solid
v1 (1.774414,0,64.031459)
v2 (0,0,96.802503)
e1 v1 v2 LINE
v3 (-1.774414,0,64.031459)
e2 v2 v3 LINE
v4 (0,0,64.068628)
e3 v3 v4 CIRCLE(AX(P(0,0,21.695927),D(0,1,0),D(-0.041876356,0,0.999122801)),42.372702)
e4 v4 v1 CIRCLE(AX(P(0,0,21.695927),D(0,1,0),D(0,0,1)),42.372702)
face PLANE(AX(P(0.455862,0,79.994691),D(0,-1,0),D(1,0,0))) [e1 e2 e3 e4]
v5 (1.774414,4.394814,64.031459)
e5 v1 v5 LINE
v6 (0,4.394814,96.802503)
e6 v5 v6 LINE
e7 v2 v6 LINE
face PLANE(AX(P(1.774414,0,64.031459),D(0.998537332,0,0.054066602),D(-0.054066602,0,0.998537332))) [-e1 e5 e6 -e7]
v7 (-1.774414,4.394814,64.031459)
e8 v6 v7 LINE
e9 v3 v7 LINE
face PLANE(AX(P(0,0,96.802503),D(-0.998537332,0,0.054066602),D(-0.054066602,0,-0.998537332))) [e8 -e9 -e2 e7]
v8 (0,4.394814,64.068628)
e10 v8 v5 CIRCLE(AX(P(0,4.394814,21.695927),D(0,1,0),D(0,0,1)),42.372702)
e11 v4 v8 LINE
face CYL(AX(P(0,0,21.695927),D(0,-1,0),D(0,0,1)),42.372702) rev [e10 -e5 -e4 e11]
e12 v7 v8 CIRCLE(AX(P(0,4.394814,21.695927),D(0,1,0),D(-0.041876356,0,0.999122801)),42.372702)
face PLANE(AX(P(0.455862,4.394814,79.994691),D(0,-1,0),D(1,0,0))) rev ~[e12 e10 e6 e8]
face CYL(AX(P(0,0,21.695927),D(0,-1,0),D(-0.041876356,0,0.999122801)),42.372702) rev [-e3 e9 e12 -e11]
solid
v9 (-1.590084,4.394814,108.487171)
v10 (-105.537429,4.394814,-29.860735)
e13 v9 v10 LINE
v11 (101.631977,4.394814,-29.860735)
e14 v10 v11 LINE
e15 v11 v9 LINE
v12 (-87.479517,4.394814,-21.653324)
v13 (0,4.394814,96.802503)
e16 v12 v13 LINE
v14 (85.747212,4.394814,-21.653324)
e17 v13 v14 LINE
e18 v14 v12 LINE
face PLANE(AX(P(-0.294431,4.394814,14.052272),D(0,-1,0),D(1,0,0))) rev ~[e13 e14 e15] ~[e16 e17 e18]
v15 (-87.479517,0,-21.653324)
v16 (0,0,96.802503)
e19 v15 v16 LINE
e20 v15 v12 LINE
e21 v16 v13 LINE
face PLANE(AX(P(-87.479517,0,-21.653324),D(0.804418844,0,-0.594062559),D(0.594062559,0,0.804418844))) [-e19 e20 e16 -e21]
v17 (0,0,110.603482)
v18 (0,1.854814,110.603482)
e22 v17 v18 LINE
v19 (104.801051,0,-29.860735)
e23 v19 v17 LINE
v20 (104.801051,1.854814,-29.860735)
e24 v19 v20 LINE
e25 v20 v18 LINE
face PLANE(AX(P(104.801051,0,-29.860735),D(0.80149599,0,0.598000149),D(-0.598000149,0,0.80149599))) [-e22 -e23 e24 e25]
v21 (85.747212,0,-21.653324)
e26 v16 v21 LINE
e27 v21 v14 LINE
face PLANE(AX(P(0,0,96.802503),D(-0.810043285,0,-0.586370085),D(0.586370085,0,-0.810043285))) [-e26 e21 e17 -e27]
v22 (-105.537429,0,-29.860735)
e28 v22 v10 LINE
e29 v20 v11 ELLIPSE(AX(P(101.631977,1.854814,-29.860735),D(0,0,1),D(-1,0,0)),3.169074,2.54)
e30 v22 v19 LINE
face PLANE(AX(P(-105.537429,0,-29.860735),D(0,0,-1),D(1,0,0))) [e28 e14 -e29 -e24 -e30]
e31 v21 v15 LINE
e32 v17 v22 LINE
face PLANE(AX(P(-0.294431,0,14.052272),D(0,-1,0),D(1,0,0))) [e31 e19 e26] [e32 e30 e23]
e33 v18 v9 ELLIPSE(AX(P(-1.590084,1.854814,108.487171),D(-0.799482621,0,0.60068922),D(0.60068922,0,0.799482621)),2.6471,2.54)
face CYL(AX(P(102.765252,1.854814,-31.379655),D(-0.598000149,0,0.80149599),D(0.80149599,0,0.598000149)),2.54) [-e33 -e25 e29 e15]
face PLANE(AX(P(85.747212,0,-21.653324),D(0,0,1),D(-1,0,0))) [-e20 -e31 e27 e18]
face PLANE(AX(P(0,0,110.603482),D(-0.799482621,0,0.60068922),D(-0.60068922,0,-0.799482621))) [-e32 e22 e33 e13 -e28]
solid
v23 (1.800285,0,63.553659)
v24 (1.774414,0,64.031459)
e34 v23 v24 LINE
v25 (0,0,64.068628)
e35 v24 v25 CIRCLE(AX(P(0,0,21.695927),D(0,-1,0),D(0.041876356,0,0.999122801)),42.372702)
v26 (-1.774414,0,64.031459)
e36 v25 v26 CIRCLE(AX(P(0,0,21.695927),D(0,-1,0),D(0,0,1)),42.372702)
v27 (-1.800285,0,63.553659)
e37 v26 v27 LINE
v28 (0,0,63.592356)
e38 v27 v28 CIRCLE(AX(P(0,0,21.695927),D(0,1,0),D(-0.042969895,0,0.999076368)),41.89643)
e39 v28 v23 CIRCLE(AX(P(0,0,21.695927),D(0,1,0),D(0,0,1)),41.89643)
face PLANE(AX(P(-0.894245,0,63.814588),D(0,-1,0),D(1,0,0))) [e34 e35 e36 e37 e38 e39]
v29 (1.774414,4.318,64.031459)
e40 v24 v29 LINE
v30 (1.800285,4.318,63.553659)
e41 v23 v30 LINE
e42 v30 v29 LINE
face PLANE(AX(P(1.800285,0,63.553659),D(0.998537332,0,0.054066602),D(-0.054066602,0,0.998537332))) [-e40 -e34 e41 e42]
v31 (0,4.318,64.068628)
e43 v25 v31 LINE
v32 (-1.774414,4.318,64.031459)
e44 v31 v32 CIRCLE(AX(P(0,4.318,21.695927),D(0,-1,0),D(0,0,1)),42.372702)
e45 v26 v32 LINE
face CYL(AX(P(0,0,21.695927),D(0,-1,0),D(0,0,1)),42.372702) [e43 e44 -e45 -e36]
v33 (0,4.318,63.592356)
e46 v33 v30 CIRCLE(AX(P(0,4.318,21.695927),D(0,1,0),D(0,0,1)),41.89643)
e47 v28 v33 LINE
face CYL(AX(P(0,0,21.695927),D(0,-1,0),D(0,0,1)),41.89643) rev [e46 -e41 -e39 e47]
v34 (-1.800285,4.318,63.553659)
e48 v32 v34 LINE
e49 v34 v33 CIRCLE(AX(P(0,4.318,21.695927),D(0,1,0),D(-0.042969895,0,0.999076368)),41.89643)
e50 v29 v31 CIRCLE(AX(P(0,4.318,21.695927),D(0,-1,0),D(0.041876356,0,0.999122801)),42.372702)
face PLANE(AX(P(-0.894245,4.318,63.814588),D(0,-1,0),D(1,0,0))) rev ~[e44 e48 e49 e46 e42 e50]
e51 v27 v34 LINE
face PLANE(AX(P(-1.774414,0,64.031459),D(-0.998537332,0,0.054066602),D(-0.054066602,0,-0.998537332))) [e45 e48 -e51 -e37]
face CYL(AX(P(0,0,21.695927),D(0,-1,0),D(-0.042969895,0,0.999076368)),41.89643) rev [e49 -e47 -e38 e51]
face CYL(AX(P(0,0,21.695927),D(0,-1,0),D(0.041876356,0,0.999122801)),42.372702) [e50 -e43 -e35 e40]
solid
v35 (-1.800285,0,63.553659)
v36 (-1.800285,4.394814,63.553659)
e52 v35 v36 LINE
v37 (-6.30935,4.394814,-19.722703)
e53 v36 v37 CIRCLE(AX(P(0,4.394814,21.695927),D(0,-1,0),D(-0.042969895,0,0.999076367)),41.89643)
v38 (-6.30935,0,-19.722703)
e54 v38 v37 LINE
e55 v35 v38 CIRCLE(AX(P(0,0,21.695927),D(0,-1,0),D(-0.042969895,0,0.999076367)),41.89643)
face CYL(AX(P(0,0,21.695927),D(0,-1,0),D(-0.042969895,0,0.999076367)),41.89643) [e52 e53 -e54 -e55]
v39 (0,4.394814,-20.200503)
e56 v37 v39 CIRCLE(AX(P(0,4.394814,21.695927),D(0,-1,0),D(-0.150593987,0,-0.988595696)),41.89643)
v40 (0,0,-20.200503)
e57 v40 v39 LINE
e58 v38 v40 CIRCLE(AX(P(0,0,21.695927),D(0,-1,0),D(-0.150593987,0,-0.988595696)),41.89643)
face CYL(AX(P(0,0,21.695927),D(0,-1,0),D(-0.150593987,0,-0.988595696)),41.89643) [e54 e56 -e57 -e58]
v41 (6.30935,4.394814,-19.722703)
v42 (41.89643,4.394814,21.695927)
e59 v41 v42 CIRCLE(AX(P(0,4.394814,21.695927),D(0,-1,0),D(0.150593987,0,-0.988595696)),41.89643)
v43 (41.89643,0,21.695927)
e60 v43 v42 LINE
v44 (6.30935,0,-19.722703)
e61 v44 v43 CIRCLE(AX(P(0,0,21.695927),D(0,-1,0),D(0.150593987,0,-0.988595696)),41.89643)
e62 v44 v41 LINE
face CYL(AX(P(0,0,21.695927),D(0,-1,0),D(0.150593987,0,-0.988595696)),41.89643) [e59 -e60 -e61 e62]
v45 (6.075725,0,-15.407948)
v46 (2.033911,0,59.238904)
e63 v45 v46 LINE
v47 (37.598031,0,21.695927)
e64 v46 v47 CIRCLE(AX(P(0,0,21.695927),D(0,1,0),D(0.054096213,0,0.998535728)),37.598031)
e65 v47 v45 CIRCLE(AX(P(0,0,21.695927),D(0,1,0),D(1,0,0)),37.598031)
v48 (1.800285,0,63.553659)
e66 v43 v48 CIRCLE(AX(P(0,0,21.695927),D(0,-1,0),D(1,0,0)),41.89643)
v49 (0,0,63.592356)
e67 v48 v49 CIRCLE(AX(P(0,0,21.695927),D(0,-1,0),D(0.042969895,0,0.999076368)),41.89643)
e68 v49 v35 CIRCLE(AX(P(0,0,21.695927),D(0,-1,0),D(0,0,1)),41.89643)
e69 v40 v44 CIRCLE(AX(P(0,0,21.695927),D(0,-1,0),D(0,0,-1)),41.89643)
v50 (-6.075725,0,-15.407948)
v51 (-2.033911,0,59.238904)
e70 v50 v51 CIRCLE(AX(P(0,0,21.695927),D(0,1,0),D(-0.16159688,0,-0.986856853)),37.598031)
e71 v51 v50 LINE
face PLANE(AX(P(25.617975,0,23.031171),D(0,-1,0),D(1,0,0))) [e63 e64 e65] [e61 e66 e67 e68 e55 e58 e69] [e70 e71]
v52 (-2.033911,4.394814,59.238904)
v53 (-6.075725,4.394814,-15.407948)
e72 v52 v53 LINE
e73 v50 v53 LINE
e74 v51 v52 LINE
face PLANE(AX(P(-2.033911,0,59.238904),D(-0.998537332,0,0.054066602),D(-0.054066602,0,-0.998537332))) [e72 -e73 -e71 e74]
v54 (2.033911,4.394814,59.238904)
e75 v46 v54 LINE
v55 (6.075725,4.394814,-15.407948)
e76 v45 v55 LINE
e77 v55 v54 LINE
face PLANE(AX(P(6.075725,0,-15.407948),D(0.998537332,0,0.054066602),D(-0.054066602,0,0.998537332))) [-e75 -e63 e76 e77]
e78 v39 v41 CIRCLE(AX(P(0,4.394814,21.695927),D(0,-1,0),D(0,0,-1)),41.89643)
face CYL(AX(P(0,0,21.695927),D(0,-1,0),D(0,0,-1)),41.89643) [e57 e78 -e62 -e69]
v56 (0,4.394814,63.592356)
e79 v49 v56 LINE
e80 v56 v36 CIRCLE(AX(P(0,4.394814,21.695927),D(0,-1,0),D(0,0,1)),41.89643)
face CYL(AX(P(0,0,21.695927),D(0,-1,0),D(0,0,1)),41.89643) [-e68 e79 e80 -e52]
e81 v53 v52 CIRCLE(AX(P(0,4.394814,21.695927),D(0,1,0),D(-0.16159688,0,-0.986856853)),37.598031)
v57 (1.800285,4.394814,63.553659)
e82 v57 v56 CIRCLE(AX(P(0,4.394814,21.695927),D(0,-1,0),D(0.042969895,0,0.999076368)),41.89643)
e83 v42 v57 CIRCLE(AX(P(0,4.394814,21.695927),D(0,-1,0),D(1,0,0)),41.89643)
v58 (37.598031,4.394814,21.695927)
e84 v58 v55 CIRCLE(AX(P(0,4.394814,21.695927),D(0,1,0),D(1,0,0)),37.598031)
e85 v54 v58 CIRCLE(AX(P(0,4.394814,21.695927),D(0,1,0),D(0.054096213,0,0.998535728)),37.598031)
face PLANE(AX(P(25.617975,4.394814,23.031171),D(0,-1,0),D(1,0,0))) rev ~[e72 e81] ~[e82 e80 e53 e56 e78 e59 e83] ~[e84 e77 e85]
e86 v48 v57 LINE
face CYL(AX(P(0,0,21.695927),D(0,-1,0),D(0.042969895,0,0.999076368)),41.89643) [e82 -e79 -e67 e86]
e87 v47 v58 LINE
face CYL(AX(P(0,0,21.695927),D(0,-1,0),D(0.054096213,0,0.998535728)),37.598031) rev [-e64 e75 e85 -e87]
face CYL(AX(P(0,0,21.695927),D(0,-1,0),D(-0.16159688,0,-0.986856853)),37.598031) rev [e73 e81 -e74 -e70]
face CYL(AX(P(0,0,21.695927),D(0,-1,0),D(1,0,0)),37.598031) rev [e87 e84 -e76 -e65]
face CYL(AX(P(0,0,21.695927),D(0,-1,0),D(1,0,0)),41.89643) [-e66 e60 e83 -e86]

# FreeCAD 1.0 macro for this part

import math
import FreeCAD as App
import Part
import Sketcher
from FreeCAD import Vector
Q = App.Units.Quantity


def edges_at(feature, points):
    """Names of the edges that pass closest to the given points."""
    edges = feature.Shape.Edges
    near = lambda p: min(range(len(edges)), key=lambda i: edges[i].distToShape(Part.Vertex(*p))[0])
    return sorted({f"Edge{near(p) + 1}" for p in points})


def add_polygon(sketch, points):
    """Adds a closed chain of lines whose ends are joined by coincident constraints."""
    first, n = sketch.GeometryCount, len(points)
    for a, b in zip(points, points[1:] + points[:1]):
        sketch.addGeometry(Part.LineSegment(App.Vector(*a, 0), App.Vector(*b, 0)), False)
    for i in range(n):
        sketch.addConstraint(Sketcher.Constraint("Coincident", first + i, 2, first + (i + 1) % n, 1))

doc = App.newDocument("Part")
body = doc.addObject("PartDesign::Body", "Body")

# Sketch on XZ plane
sketch1 = doc.addObject("Sketcher::SketchObject", "Sketch")
body.addObject(sketch1)
sketch1.AttachmentSupport = (doc.XZ_Plane, [""])
sketch1.MapMode = "FlatFace"
sketch1.addGeometry([
    Part.ArcOfCircle(Part.Circle(Vector(0, 21.7, 0), Vector(0, 0, 1), 41.9), math.radians(87.54), math.radians(90)),  # 0
    Part.ArcOfCircle(Part.Circle(Vector(0, 21.7, 0), Vector(0, 0, 1), 41.9), math.radians(90), math.radians(92.46)),  # 1
    Part.ArcOfCircle(Part.Circle(Vector(0, 21.7, 0), Vector(0, 0, 1), 41.9), math.radians(92), math.radians(261)),  # 2
    Part.ArcOfCircle(Part.Circle(Vector(0, 21.7, 0), Vector(0, 0, 1), 41.9), math.radians(-98.66), math.radians(-90)),  # 3
    Part.ArcOfCircle(Part.Circle(Vector(0, 21.7, 0), Vector(0, 0, 1), 41.9), math.radians(-90), math.radians(-81.34)),  # 4
    Part.ArcOfCircle(Part.Circle(Vector(0, 21.7, 0), Vector(0, 0, 1), 41.9), math.radians(-81), math.radians(0)),  # 5
    Part.ArcOfCircle(Part.Circle(Vector(0, 21.7, 0), Vector(0, 0, 1), 41.9), math.radians(0), math.radians(88)),  # 6
    Part.ArcOfCircle(Part.Circle(Vector(0, 21.7, 0), Vector(0, 0, 1), 37.6), math.radians(93), math.radians(261)),  # 7
    Part.LineSegment(Vector(-2, 59.2, 0), Vector(-6.1, -15.4, 0)),  # 8
    Part.LineSegment(Vector(6.1, -15.4, 0), Vector(2, 59.2, 0)),  # 9
    Part.ArcOfCircle(Part.Circle(Vector(0, 21.7, 0), Vector(0, 0, 1), 37.6), math.radians(0), math.radians(87)),  # 10
    Part.ArcOfCircle(Part.Circle(Vector(0, 21.7, 0), Vector(0, 0, 1), 37.6), math.radians(-81), math.radians(0)),  # 11
], False)
sketch1.addConstraint([
    Sketcher.Constraint("Tangent", 0, 2, 1, 1),
    Sketcher.Constraint("Tangent", 1, 2, 2, 1),
    Sketcher.Constraint("Tangent", 2, 2, 3, 1),
    Sketcher.Constraint("Tangent", 3, 2, 4, 1),
    Sketcher.Constraint("Tangent", 4, 2, 5, 1),
    Sketcher.Constraint("Tangent", 5, 2, 6, 1),
    Sketcher.Constraint("Tangent", 6, 2, 0, 1),
    Sketcher.Constraint("Coincident", 7, 1, 8, 1),
    Sketcher.Constraint("Coincident", 8, 2, 7, 2),
    Sketcher.Constraint("Coincident", 9, 2, 10, 2),
    Sketcher.Constraint("Tangent", 10, 1, 11, 2),
    Sketcher.Constraint("Coincident", 11, 1, 9, 1),
    Sketcher.Constraint("Coincident", 2, 3, 0, 3),
    Sketcher.Constraint("Coincident", 4, 3, 0, 3),
    Sketcher.Constraint("Coincident", 7, 3, 0, 3),
    Sketcher.Constraint("Coincident", 10, 3, 0, 3),
    Sketcher.Constraint("Equal", 7, 10),
    Sketcher.Constraint("Equal", 10, 11),
    Sketcher.Constraint("Symmetric", 2, 2, 4, 2, -2),
    Sketcher.Constraint("PointOnObject", 0, 2, -2),
    Sketcher.Constraint("PointOnObject", 3, 2, -2),
    Sketcher.Constraint("Horizontal", 11, 3, 5, 2),
    Sketcher.Constraint("Horizontal", 1, 2, 6, 2),
    Sketcher.Constraint("Horizontal", 7, 1, 9, 2),
    Sketcher.Constraint("Horizontal", 5, 2, 10, 1),
    Sketcher.Constraint("Horizontal", 8, 2, 11, 1),
    Sketcher.Constraint("Radius", 0, 41.89643),
    Sketcher.Constraint("Radius", 7, 37.598031),
    Sketcher.Constraint("DistanceY", 3, 2, 2, 2, 0.4778),
    Sketcher.Constraint("DistanceY", -1, 1, 1, 2, 63.553659),
    Sketcher.Constraint("DistanceX", 7, 1, -1, 1, 2.033911),
    Sketcher.Constraint("DistanceX", 1, 2, 6, 2, 3.60057),
    Sketcher.Constraint("DistanceX", 8, 2, 11, 1, 12.151449),
])
pad1 = doc.addObject("PartDesign::Pad", "Pad")
body.addObject(pad1)
pad1.Profile = sketch1
pad1.Length = 4.394814
pad1.Reversed = True
body2 = doc.addObject("PartDesign::Body", "Body001")

# Sketch on XZ plane
sketch2 = doc.addObject("Sketcher::SketchObject", "Sketch001")
body2.addObject(sketch2)
sketch2.AttachmentSupport = (doc.getObject("XZ_Plane001"), [""])
sketch2.MapMode = "FlatFace"
add_polygon(sketch2, [(105, -30), (0, 111), (-106, -30)])  # lines 0-2
add_polygon(sketch2, [(86, -22), (-87, -22), (0, 97)])  # lines 3-5
sketch2.addConstraint([
    Sketcher.Constraint("Horizontal", 2),
    Sketcher.Constraint("Horizontal", 3),
    Sketcher.Constraint("PointOnObject", 0, 2, -2),
    Sketcher.Constraint("PointOnObject", 4, 2, -2),
    Sketcher.Constraint("DistanceX", 2, 1, 2, 2, 210.338481),
    Sketcher.Constraint("DistanceX", 3, 2, 3, 1, 173.226729),
    Sketcher.Constraint("Distance", 0, 175.252551),
    Sketcher.Constraint("DistanceY", -1, 1, 0, 2, 110.603482),
    Sketcher.Constraint("DistanceX", 1, 2, -1, 1, 105.537429),
    Sketcher.Constraint("DistanceY", 1, 2, 3, 2, 8.207411),
    Sketcher.Constraint("DistanceX", 3, 2, 2, 2, 192.280568),
    Sketcher.Constraint("DistanceY", 4, 2, 0, 2, 13.800979),
])
pad2 = doc.addObject("PartDesign::Pad", "Pad001")
body2.addObject(pad2)
pad2.Profile = sketch2
pad2.Length = 4.394814
pad2.Reversed = True
doc.recompute()

fillet = doc.addObject("PartDesign::Fillet", "Fillet")
body2.addObject(fillet)
fillet.Base = (pad2, edges_at(pad2, [(52.401, 4.395, 40.371)]))
fillet.Radius = Q("0.1 in")
body3 = doc.addObject("PartDesign::Body", "Body002")

# Sketch on XZ plane
sketch3 = doc.addObject("Sketcher::SketchObject", "Sketch002")
body3.addObject(sketch3)
sketch3.AttachmentSupport = (doc.getObject("XZ_Plane002"), [""])
sketch3.MapMode = "FlatFace"
sketch3.addGeometry([
    Part.LineSegment(Vector(1.8, 64, 0), Vector(0, 96.8, 0)),
    Part.LineSegment(Vector(0, 96.8, 0), Vector(-1.8, 64, 0)),
    Part.ArcOfCircle(Part.Circle(Vector(0, 21.7, 0), Vector(0, 0, 1), 42.4), math.radians(90), math.radians(92.4)),
    Part.ArcOfCircle(Part.Circle(Vector(0, 21.7, 0), Vector(0, 0, 1), 42.4), math.radians(87.6), math.radians(90)),
], False)
sketch3.addConstraint([
    Sketcher.Constraint("Coincident", 0, 2, 1, 1),
    Sketcher.Constraint("Coincident", 1, 2, 2, 2),
    Sketcher.Constraint("Tangent", 2, 1, 3, 2),
    Sketcher.Constraint("Coincident", 3, 1, 0, 1),
    Sketcher.Constraint("Equal", 2, 3),
    Sketcher.Constraint("Symmetric", 1, 2, 3, 1, -2),
    Sketcher.Constraint("PointOnObject", 0, 2, -2),
    Sketcher.Constraint("PointOnObject", 2, 1, -2),
    Sketcher.Constraint("Radius", 2, 42.372702),
    Sketcher.Constraint("DistanceY", -1, 1, 1, 2, 64.031459),
    Sketcher.Constraint("DistanceY", -1, 1, 2, 1, 64.068628),
    Sketcher.Constraint("Distance", 0, 32.819047),
])
pad3 = doc.addObject("PartDesign::Pad", "Pad002")
body3.addObject(pad3)
pad3.Profile = sketch3
pad3.Length = 4.394814
pad3.Reversed = True
body4 = doc.addObject("PartDesign::Body", "Body003")

# Sketch on XZ plane
sketch4 = doc.addObject("Sketcher::SketchObject", "Sketch003")
body4.addObject(sketch4)
sketch4.AttachmentSupport = (doc.getObject("XZ_Plane003"), [""])
sketch4.MapMode = "FlatFace"
sketch4.addGeometry([
    Part.ArcOfCircle(Part.Circle(Vector(0, 21.7, 0), Vector(0, 0, 1), 42.37), math.radians(90), math.radians(92.4)),  # 0
    Part.LineSegment(Vector(-1.77, 64.03, 0), Vector(-1.8, 63.55, 0)),  # 1
    Part.ArcOfCircle(Part.Circle(Vector(0, 21.7, 0), Vector(0, 0, 1), 41.9), math.radians(90), math.radians(92.46)),  # 2
    Part.ArcOfCircle(Part.Circle(Vector(0, 21.7, 0), Vector(0, 0, 1), 41.9), math.radians(87.54), math.radians(90)),  # 3
    Part.LineSegment(Vector(1.8, 63.55, 0), Vector(1.77, 64.03, 0)),  # 4
    Part.ArcOfCircle(Part.Circle(Vector(0, 21.7, 0), Vector(0, 0, 1), 42.37), math.radians(87.6), math.radians(90)),  # 5
], False)
sketch4.addConstraint([
    Sketcher.Constraint("Coincident", 0, 2, 1, 1),
    Sketcher.Constraint("Coincident", 1, 2, 2, 2),
    Sketcher.Constraint("Tangent", 2, 1, 3, 2),
    Sketcher.Constraint("Coincident", 3, 1, 4, 1),
    Sketcher.Constraint("Coincident", 4, 2, 5, 1),
    Sketcher.Constraint("Tangent", 5, 2, 0, 1),
    Sketcher.Constraint("Coincident", 2, 3, 0, 3),
    Sketcher.Constraint("Equal", 2, 3),
    Sketcher.Constraint("Equal", 0, 5),
    Sketcher.Constraint("Symmetric", 1, 2, 3, 1, -2),
    Sketcher.Constraint("PointOnObject", 2, 1, -2),
    Sketcher.Constraint("PointOnObject", 5, 2, -2),
    Sketcher.Constraint("Horizontal", 0, 2, 4, 2),
    Sketcher.Constraint("Radius", 0, 42.372702),
    Sketcher.Constraint("Radius", 2, 41.89643),
    Sketcher.Constraint("Distance", 1, 0.478499),
    Sketcher.Constraint("DistanceX", 0, 2, 3, 1, 3.5747),
    Sketcher.Constraint("DistanceY", -1, 1, 0, 2, 64.031459),
])
pad4 = doc.addObject("PartDesign::Pad", "Pad003")
body4.addObject(pad4)
pad4.Profile = sketch4
pad4.Length = Q("0.17 in")
pad4.Reversed = True

doc.recompute()
